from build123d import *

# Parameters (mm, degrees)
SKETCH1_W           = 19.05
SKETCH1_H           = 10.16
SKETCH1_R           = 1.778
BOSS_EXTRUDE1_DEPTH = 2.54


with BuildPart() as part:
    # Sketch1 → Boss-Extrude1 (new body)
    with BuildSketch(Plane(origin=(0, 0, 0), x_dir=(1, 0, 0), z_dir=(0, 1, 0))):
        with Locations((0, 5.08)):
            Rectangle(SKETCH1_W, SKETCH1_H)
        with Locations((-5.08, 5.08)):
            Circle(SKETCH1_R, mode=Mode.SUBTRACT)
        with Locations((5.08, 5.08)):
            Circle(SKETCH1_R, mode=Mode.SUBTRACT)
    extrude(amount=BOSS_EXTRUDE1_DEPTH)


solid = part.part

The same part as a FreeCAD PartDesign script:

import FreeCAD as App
import Part
import Sketcher

V = App.Vector
Q = App.Units.Quantity

doc = App.newDocument("Part")
body = doc.addObject("PartDesign::Body", "Body")

sketch1 = body.newObject("Sketcher::SketchObject", "Sketch")
sketch1.AttachmentSupport = (doc.getObject("XZ_Plane"), [""])
sketch1.MapMode = "FlatFace"
sketch1.addGeometry([
    Part.LineSegment(V(-9.5, -10.2, 0), V(-9.5, 0, 0)),
    Part.LineSegment(V(-9.5, 0, 0), V(9.5, 0, 0)),
    Part.LineSegment(V(9.5, 0, 0), V(9.5, -10.2, 0)),
    Part.LineSegment(V(9.5, -10.2, 0), V(-9.5, -10.2, 0)),
    Part.Circle(V(-5.1, -5.1, 0), V(0, 0, 1), 1.8),
    Part.Circle(V(5.1, -5.1, 0), V(0, 0, 1), 1.8),
], False)
sketch1.addConstraint([
    Sketcher.Constraint("Coincident", 0, 2, 1, 1),
    Sketcher.Constraint("Coincident", 1, 2, 2, 1),
    Sketcher.Constraint("Coincident", 2, 2, 3, 1),
    Sketcher.Constraint("Coincident", 3, 2, 0, 1),
    Sketcher.Constraint("Vertical", 0),
    Sketcher.Constraint("Horizontal", 1),
    Sketcher.Constraint("Vertical", 2),
    Sketcher.Constraint("Horizontal", 3),
    Sketcher.Constraint("Equal", 4, 5),
    Sketcher.Constraint("Symmetric", 0, 2, 1, 2, -1, 1),
    Sketcher.Constraint("Symmetric", 4, 3, 5, 3, -2),
    Sketcher.Constraint("Diameter", 4, Q("0.14 in")),
    Sketcher.Constraint("DistanceY", 0, 1, 0, 2, Q("0.4 in")),
    Sketcher.Constraint("DistanceX", 1, 1, 1, 2, Q("0.75 in")),
    Sketcher.Constraint("DistanceX", 4, 3, -1, 1, Q("0.2 in")),
    Sketcher.Constraint("DistanceY", 4, 3, -1, 1, Q("0.2 in")),
])
pad1 = body.newObject("PartDesign::Pad", "Pad")
pad1.Profile = sketch1
pad1.Length = Q("0.1 in")
pad1.Reversed = True

doc.recompute()
